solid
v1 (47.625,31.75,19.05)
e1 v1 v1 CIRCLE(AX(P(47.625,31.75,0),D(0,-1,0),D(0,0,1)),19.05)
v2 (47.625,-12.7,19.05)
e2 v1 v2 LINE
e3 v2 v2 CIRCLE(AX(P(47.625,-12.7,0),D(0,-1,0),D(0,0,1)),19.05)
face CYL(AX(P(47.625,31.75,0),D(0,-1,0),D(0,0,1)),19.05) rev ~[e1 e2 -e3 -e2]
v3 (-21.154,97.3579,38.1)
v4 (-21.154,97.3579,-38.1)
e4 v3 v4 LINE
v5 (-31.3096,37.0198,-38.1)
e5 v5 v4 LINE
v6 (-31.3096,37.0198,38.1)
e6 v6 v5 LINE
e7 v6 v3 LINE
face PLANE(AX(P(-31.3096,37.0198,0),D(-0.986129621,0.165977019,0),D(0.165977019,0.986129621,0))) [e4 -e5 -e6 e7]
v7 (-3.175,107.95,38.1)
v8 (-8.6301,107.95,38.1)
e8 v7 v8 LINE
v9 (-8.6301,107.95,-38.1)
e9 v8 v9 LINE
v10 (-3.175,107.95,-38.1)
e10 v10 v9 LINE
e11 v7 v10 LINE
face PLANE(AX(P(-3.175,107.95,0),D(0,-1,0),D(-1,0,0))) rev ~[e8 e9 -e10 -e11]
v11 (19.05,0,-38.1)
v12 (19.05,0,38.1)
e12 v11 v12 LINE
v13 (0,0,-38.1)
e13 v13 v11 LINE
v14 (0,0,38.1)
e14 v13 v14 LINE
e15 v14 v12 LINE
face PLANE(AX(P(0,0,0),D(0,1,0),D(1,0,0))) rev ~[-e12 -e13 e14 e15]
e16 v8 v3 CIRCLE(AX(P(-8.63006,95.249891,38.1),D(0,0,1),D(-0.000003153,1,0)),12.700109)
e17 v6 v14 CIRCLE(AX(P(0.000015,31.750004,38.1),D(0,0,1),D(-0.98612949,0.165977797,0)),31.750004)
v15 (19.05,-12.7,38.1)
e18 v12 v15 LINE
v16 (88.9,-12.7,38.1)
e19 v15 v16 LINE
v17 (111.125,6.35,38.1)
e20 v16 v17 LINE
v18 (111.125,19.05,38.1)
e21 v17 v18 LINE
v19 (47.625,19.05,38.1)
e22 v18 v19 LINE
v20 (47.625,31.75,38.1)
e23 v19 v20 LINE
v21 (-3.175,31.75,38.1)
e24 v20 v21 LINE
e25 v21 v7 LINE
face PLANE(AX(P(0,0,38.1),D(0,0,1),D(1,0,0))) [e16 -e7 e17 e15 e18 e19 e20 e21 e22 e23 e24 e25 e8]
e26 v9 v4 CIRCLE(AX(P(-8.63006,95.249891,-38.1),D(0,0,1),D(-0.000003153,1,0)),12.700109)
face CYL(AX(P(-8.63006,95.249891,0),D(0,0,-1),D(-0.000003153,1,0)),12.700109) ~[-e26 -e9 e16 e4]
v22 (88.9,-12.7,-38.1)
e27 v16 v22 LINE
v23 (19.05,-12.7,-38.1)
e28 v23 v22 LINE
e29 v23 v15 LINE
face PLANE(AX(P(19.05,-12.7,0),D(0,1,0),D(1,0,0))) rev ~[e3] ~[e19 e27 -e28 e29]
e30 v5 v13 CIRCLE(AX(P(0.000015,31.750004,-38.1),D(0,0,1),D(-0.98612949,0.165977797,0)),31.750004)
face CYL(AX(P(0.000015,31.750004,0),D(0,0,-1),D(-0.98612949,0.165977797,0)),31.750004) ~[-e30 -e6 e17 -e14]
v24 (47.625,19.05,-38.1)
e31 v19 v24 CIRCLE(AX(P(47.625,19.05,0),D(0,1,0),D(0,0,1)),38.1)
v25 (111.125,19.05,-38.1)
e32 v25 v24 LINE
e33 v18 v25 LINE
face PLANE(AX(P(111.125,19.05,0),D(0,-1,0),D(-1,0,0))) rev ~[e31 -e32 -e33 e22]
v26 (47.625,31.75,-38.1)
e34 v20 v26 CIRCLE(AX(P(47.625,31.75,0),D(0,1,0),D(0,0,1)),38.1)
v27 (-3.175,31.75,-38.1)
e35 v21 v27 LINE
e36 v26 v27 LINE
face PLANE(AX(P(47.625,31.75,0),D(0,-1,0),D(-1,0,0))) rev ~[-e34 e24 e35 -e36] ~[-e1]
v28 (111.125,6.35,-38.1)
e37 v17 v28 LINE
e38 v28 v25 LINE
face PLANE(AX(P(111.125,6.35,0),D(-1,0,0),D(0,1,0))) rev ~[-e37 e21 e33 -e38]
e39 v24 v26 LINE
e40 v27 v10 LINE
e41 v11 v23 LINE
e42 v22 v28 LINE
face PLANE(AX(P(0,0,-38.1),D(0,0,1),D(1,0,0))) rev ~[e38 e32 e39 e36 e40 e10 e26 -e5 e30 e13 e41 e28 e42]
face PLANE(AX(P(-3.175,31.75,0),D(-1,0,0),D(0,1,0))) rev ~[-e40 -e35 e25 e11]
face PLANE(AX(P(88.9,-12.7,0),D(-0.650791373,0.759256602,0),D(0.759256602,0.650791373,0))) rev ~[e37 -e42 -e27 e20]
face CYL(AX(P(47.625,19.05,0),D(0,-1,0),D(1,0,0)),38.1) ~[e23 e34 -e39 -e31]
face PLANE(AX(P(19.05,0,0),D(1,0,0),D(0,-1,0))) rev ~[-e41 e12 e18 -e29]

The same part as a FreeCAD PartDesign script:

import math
import FreeCAD as App
import Part
import Sketcher

V = App.Vector
Q = App.Units.Quantity

doc = App.newDocument("Part")
body = doc.addObject("PartDesign::Body", "Body")

# Sketch on XY plane
sketch1 = body.newObject("Sketcher::SketchObject", "Sketch")
sketch1.AttachmentSupport = (doc.getObject("XY_Plane"), [""])
sketch1.MapMode = "FlatFace"
sketch1.addGeometry([
    Part.ArcOfCircle(Part.Circle(V(0, 31.75, 0), V(0, 0, 1), 31.74999), math.radians(170.445946), math.radians(270)),  # 0
    Part.LineSegment(V(0, 0, 0), V(19.05, 0, 0)),  # 1
    Part.LineSegment(V(19.05, 0, 0), V(19.05, -12.7, 0)),  # 2
    Part.LineSegment(V(19.05, -12.7, 0), V(88.9, -12.7, 0)),  # 3
    Part.LineSegment(V(88.9, -12.7, 0), V(111.125, 6.35, 0)),  # 4
    Part.LineSegment(V(111.125, 6.35, 0), V(111.125, 19.05, 0)),  # 5
    Part.LineSegment(V(111.125, 19.05, 0), V(47.625, 19.05, 0)),  # 6
    Part.LineSegment(V(47.625, 19.05, 0), V(47.625, 31.75, 0)),  # 7
    Part.LineSegment(V(47.625, 31.75, 0), V(-3.175, 31.75, 0)),  # 8
    Part.LineSegment(V(-3.175, 31.75, 0), V(-3.175, 107.95, 0)),  # 9
    Part.LineSegment(V(-3.175, 107.95, 0), V(-8.6301, 107.95, 0)),  # 10
    Part.ArcOfCircle(Part.Circle(V(-8.6301, 95.25, 0), V(0, 0, 1), 12.7), math.radians(90), math.radians(170.44608)),  # 11
    Part.LineSegment(V(-21.154, 97.3579, 0), V(-31.3096, 37.0198, 0)),  # 12
], False)
sketch1.addConstraint([
    Sketcher.Constraint("Tangent", 0, 2, 1, 1),
    Sketcher.Constraint("Coincident", 1, 2, 2, 1),
    Sketcher.Constraint("Coincident", 2, 2, 3, 1),
    Sketcher.Constraint("Coincident", 3, 2, 4, 1),
    Sketcher.Constraint("Coincident", 4, 2, 5, 1),
    Sketcher.Constraint("Coincident", 5, 2, 6, 1),
    Sketcher.Constraint("Coincident", 6, 2, 7, 1),
    Sketcher.Constraint("Coincident", 7, 2, 8, 1),
    Sketcher.Constraint("Coincident", 8, 2, 9, 1),
    Sketcher.Constraint("Coincident", 9, 2, 10, 1),
    Sketcher.Constraint("Tangent", 10, 2, 11, 1),
    Sketcher.Constraint("Tangent", 11, 2, 12, 1),
    Sketcher.Constraint("Tangent", 12, 2, 0, 1),
    Sketcher.Constraint("Horizontal", 1),
    Sketcher.Constraint("Vertical", 2),
    Sketcher.Constraint("Horizontal", 3),
    Sketcher.Constraint("Vertical", 5),
    Sketcher.Constraint("Horizontal", 6),
    Sketcher.Constraint("Vertical", 7),
    Sketcher.Constraint("Horizontal", 8),
    Sketcher.Constraint("Vertical", 9),
    Sketcher.Constraint("Horizontal", 10),
    Sketcher.Constraint("Coincident", 0, 2, -1, 1),
    Sketcher.Constraint("Horizontal", 0, 3, 7, 2),
    Sketcher.Constraint("Equal", 2, 5),
    Sketcher.Constraint("Equal", 5, 7),
    Sketcher.Constraint("Radius", 11, Q("0.5 in")),
    Sketcher.Constraint("DistanceX", 8, 2, 8, 1, Q("2 in")),
    Sketcher.Constraint("DistanceY", 9, 1, 9, 2, Q("3 in")),
    Sketcher.Constraint("Radius", 0, Q("1.25 in")),
    Sketcher.Constraint("DistanceY", 2, 2, 2, 1, Q("0.5 in")),
    Sketcher.Constraint("DistanceX", 1, 1, 1, 2, Q("0.75 in")),
    Sketcher.Constraint("DistanceX", 3, 1, 3, 2, Q("2.75 in")),
    Sketcher.Constraint("DistanceX", 6, 2, 6, 1, Q("2.5 in")),
    Sketcher.Constraint("DistanceX", -1, 1, 4, 2, Q("4.375 in")),
    Sketcher.Constraint("DistanceX", 10, 2, 10, 1, Q("5.455 mm")),
])
pad1 = body.newObject("PartDesign::Pad", "Pad")
pad1.Profile = sketch1
pad1.Length = Q("3 in")
pad1.Midplane = True

# Sketch on XZ plane
sketch2 = body.newObject("Sketcher::SketchObject", "Sketch001")
sketch2.AttachmentSupport = (doc.getObject("XZ_Plane"), [""])
sketch2.MapMode = "FlatFace"
sketch2.AttachmentOffset = App.Placement(V(0, 0, -0.75 * 25.4), App.Rotation())
sketch2.addGeometry(Part.Circle(V(47.625, 0, 0), V(0, 0, 1), 38.1), False)
sketch2.addConstraint([
    Sketcher.Constraint("PointOnObject", 0, 3, -1),
    Sketcher.Constraint("Diameter", 0, Q("3 in")),
    Sketcher.Constraint("DistanceX", -1, 1, 0, 3, Q("1.875 in")),
])
pad2 = body.newObject("PartDesign::Pad", "Pad001")
pad2.Profile = sketch2
pad2.Length = Q("0.5 in")
pad2.Reversed = True

# Sketch on XZ plane
sketch3 = body.newObject("Sketcher::SketchObject", "Sketch002")
sketch3.AttachmentSupport = (doc.getObject("XZ_Plane"), [""])
sketch3.MapMode = "FlatFace"
sketch3.AttachmentOffset = App.Placement(V(0, 0, -1.25 * 25.4), App.Rotation())
sketch3.addGeometry(Part.Circle(V(47.625, 0, 0), V(0, 0, 1), 19.05), False)
sketch3.addConstraint([
    Sketcher.Constraint("PointOnObject", 0, 3, -1),
    Sketcher.Constraint("Diameter", 0, Q("1.5 in")),
    Sketcher.Constraint("DistanceX", -1, 1, 0, 3, Q("1.875 in")),
])
doc.recompute()
hole = body.newObject("PartDesign::Hole", "Hole")
hole.Profile = sketch3
hole.ThreadType = "None"
hole.Diameter = Q("1.5 in")
hole.DepthType = "ThroughAll"
hole.Reversed = True

doc.recompute()
